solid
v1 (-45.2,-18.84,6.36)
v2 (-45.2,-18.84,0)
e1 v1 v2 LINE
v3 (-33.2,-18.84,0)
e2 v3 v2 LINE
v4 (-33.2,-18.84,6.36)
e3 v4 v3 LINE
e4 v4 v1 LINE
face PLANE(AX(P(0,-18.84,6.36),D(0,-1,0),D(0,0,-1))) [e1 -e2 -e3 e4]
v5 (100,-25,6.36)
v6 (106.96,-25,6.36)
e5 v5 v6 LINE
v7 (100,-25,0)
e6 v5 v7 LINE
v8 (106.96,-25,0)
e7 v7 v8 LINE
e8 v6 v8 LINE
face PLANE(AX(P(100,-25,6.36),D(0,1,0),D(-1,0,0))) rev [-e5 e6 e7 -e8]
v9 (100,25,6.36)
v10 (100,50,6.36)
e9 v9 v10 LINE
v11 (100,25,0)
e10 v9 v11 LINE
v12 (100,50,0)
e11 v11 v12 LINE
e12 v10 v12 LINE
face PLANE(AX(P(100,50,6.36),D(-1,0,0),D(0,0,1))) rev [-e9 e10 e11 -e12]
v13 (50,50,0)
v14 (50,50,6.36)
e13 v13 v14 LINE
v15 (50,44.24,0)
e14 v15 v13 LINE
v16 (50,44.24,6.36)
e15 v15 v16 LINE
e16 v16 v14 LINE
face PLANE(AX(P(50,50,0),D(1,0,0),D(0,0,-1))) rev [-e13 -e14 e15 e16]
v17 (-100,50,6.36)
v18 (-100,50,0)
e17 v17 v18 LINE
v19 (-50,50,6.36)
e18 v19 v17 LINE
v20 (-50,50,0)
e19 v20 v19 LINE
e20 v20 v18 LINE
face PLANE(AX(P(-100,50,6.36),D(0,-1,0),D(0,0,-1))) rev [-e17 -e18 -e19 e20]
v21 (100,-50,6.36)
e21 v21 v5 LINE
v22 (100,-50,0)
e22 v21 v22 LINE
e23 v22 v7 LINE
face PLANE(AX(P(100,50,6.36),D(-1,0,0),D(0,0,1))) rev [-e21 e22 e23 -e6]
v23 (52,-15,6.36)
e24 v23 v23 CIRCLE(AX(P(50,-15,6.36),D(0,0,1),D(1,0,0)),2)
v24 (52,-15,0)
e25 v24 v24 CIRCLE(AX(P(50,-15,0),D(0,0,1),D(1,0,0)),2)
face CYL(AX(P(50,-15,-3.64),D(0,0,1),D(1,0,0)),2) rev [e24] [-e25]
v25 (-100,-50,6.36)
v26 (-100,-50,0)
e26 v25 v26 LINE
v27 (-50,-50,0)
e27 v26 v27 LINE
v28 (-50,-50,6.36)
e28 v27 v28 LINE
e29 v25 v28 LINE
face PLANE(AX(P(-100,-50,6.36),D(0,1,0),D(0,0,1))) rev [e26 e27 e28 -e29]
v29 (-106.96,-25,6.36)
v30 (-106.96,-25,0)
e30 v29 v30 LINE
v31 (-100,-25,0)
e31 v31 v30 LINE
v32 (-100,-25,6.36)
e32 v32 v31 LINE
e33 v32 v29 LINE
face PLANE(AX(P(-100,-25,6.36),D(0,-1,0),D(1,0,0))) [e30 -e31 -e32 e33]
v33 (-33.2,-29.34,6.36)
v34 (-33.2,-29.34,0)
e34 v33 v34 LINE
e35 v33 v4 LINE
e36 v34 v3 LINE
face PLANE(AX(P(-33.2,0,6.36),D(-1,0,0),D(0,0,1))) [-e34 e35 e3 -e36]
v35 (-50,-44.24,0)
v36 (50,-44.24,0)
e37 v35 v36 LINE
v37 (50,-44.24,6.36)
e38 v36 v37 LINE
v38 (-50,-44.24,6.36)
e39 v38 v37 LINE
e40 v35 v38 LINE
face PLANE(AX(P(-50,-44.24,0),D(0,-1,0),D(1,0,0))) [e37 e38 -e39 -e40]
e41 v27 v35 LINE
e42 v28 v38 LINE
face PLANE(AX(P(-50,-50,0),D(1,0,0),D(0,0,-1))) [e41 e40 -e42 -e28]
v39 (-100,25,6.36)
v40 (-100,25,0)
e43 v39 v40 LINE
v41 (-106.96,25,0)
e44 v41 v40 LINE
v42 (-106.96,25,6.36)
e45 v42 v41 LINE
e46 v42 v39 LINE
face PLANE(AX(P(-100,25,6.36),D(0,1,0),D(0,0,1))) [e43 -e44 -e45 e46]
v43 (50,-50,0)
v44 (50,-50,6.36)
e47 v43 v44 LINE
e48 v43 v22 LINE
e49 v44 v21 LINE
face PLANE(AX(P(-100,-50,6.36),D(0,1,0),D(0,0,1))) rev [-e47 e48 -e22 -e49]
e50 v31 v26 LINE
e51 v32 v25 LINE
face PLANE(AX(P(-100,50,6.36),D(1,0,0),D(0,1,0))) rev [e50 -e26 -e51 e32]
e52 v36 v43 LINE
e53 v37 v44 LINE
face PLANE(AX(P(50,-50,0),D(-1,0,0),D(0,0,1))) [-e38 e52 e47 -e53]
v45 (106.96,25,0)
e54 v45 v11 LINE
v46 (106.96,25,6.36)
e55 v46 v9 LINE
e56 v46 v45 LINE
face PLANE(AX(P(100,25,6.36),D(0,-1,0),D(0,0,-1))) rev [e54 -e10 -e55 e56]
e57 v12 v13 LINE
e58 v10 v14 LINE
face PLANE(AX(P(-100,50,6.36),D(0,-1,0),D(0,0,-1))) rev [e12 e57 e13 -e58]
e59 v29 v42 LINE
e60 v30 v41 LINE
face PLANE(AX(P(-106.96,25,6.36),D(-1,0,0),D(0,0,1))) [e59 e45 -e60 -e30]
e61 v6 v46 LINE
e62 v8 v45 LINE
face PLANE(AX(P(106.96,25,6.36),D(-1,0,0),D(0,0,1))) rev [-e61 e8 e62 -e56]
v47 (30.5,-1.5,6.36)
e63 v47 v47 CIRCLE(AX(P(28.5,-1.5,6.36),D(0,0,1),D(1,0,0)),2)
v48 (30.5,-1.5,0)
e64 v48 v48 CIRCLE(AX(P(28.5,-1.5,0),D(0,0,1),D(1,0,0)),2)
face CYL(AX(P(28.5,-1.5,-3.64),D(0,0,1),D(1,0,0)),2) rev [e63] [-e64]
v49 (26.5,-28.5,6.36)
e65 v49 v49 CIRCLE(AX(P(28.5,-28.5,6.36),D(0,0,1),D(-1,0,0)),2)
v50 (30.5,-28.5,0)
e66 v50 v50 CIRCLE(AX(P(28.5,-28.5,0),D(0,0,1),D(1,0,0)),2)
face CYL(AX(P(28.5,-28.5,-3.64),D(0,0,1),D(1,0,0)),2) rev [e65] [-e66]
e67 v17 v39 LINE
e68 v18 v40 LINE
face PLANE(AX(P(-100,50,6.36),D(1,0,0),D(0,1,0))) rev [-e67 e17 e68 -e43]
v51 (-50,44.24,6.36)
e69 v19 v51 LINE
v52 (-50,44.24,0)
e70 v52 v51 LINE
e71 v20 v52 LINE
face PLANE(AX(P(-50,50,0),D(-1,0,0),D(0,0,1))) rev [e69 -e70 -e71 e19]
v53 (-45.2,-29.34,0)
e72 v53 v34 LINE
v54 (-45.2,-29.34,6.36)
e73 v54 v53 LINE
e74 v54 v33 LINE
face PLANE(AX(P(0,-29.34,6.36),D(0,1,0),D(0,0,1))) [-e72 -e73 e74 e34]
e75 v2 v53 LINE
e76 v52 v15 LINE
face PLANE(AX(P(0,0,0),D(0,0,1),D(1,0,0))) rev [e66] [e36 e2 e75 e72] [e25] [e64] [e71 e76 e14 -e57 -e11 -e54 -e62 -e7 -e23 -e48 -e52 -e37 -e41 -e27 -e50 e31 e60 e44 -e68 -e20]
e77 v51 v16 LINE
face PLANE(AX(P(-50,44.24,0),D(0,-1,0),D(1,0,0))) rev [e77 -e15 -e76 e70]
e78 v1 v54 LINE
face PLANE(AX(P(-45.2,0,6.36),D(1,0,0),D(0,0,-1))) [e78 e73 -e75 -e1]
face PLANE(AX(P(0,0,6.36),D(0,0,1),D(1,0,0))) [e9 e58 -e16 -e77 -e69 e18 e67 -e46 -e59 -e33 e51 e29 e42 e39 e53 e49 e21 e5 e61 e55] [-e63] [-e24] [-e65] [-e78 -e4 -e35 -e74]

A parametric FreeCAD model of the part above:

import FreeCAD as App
import Part
import Sketcher

V = App.Vector
Q = App.Units.Quantity


def add_polygon(sketch, points):
    """Adds a closed chain of lines whose ends are joined by coincident constraints."""
    first, n = sketch.GeometryCount, len(points)
    for a, b in zip(points, points[1:] + points[:1]):
        sketch.addGeometry(Part.LineSegment(App.Vector(*a, 0), App.Vector(*b, 0)), False)
    for i in range(n):
        sketch.addConstraint(Sketcher.Constraint("Coincident", first + i, 2, first + (i + 1) % n, 1))

doc = App.newDocument("Part")
body = doc.addObject("PartDesign::Body", "Body")

# Sketch on XY plane
sketch1 = doc.addObject("Sketcher::SketchObject", "Sketch")
body.addObject(sketch1)
sketch1.AttachmentSupport = (doc.XY_Plane, [""])
sketch1.MapMode = "FlatFace"
add_polygon(sketch1, [(-100, 50), (-100, -50), (100, -50), (100, 50)])  # lines 0-3
sketch1.addConstraint(Sketcher.Constraint("Vertical", 0))
sketch1.addConstraint(Sketcher.Constraint("Horizontal", 1))
sketch1.addConstraint(Sketcher.Constraint("Vertical", 2))
sketch1.addConstraint(Sketcher.Constraint("Horizontal", 3))
sketch1.addConstraint(Sketcher.Constraint("Symmetric", 0, 2, 2, 2, -1, 1))
sketch1.addConstraint(Sketcher.Constraint("DistanceX", 1, 1, 1, 2, Q("200 mm")))
sketch1.addConstraint(Sketcher.Constraint("DistanceY", 0, 2, 0, 1, Q("100 mm")))
pad1 = doc.addObject("PartDesign::Pad", "Pad")
body.addObject(pad1)
pad1.Profile = sketch1
pad1.Length = 6.36

# Sketch on XY plane
sketch2 = doc.addObject("Sketcher::SketchObject", "Sketch001")
body.addObject(sketch2)
sketch2.AttachmentSupport = (doc.XY_Plane, [""])
sketch2.MapMode = "FlatFace"
add_polygon(sketch2, [(-100, 25), (-100, -25), (-107, -25), (-107, 25)])  # lines 0-3
sketch2.addConstraint(Sketcher.Constraint("Vertical", 0))
sketch2.addConstraint(Sketcher.Constraint("Horizontal", 1))
sketch2.addConstraint(Sketcher.Constraint("Vertical", 2))
sketch2.addConstraint(Sketcher.Constraint("Horizontal", 3))
sketch2.addConstraint(Sketcher.Constraint("DistanceY", 0, 2, 0, 1, Q("50 mm")))
sketch2.addConstraint(Sketcher.Constraint("DistanceX", 0, 2, -1, 1, Q("100 mm")))
sketch2.addConstraint(Sketcher.Constraint("DistanceY", 0, 2, -1, 1, Q("25 mm")))
sketch2.addConstraint(Sketcher.Constraint("DistanceX", 1, 2, 1, 1, Q("6.96 mm")))
pad2 = doc.addObject("PartDesign::Pad", "Pad001")
body.addObject(pad2)
pad2.Profile = sketch2
pad2.Length = 6.36
doc.recompute()

mirrored = doc.addObject("PartDesign::Mirrored", "Mirrored")
body.addObject(mirrored)
mirrored.Originals = [pad2]
mirrored.MirrorPlane = (doc.YZ_Plane, [""])
body.Tip = mirrored

# Sketch on XY plane
sketch3 = doc.addObject("Sketcher::SketchObject", "Sketch002")
body.addObject(sketch3)
sketch3.AttachmentSupport = (doc.XY_Plane, [""])
sketch3.MapMode = "FlatFace"
sketch3.AttachmentOffset = App.Placement(V(0, 0, 6.36), App.Rotation())
add_polygon(sketch3, [(-50, 50), (-50, 44), (50, 44), (50, 50)])  # lines 0-3
sketch3.addConstraint(Sketcher.Constraint("Vertical", 0))
sketch3.addConstraint(Sketcher.Constraint("Horizontal", 1))
sketch3.addConstraint(Sketcher.Constraint("Vertical", 2))
sketch3.addConstraint(Sketcher.Constraint("Horizontal", 3))
sketch3.addConstraint(Sketcher.Constraint("DistanceX", 1, 1, 1, 2, Q("100 mm")))
sketch3.addConstraint(Sketcher.Constraint("DistanceX", 0, 2, -1, 1, Q("50 mm")))
sketch3.addConstraint(Sketcher.Constraint("DistanceY", -1, 1, 2, 2, Q("50 mm")))
sketch3.addConstraint(Sketcher.Constraint("DistanceY", 0, 2, 0, 1, Q("5.76 mm")))
pocket1 = doc.addObject("PartDesign::Pocket", "Pocket")
body.addObject(pocket1)
pocket1.Profile = sketch3
pocket1.Length = 238.481637
pocket1.Midplane = True
doc.recompute()

mirrored2 = doc.addObject("PartDesign::Mirrored", "Mirrored001")
body.addObject(mirrored2)
mirrored2.Originals = [pocket1]
mirrored2.MirrorPlane = (doc.XZ_Plane, [""])
body.Tip = mirrored2

# Sketch on XY plane
sketch4 = doc.addObject("Sketcher::SketchObject", "Sketch003")
body.addObject(sketch4)
sketch4.AttachmentSupport = (doc.XY_Plane, [""])
sketch4.MapMode = "FlatFace"
sketch4.AttachmentOffset = App.Placement(V(0, 0, 6.36), App.Rotation())
sketch4.addGeometry(Part.Circle(V(50, -15, 0), V(0, 0, 1), 2), False)
sketch4.addGeometry(Part.Circle(V(28.5, -1.5, 0), V(0, 0, 1), 2), False)
sketch4.addGeometry(Part.Circle(V(28.5, -28.5, 0), V(0, 0, 1), 2), False)
sketch4.addConstraint(Sketcher.Constraint("Equal", 0, 1))
sketch4.addConstraint(Sketcher.Constraint("Equal", 1, 2))
sketch4.addConstraint(Sketcher.Constraint("Vertical", 1, 3, 2, 3))
sketch4.addConstraint(Sketcher.Constraint("Diameter", 0, Q("4 mm")))
sketch4.addConstraint(Sketcher.Constraint("DistanceX", -1, 1, 0, 3, Q("50 mm")))
sketch4.addConstraint(Sketcher.Constraint("DistanceY", 0, 3, -1, 1, Q("15 mm")))
sketch4.addConstraint(Sketcher.Constraint("DistanceY", 2, 3, 1, 3, Q("27 mm")))
sketch4.addConstraint(Sketcher.Constraint("DistanceX", -1, 1, 1, 3, Q("28.5 mm")))
sketch4.addConstraint(Sketcher.Constraint("DistanceY", 1, 3, -1, 1, Q("1.5 mm")))
pocket2 = doc.addObject("PartDesign::Pocket", "Pocket001")
body.addObject(pocket2)
pocket2.Profile = sketch4
pocket2.Length = 10

# Sketch on XY plane
sketch5 = doc.addObject("Sketcher::SketchObject", "Sketch004")
body.addObject(sketch5)
sketch5.AttachmentSupport = (doc.XY_Plane, [""])
sketch5.MapMode = "FlatFace"
add_polygon(sketch5, [(-33, -19), (-33, -29), (-45, -29), (-45, -19)])  # lines 0-3
sketch5.addConstraint(Sketcher.Constraint("Vertical", 0))
sketch5.addConstraint(Sketcher.Constraint("Horizontal", 1))
sketch5.addConstraint(Sketcher.Constraint("Vertical", 2))
sketch5.addConstraint(Sketcher.Constraint("Horizontal", 3))
sketch5.addConstraint(Sketcher.Constraint("DistanceX", 1, 2, 1, 1, Q("12 mm")))
sketch5.addConstraint(Sketcher.Constraint("DistanceY", 0, 2, 0, 1, Q("10.5 mm")))
sketch5.addConstraint(Sketcher.Constraint("DistanceX", 0, 2, -1, 1, Q("33.2 mm")))
sketch5.addConstraint(Sketcher.Constraint("DistanceY", 0, 2, -1, 1, Q("29.34 mm")))
pocket3 = doc.addObject("PartDesign::Pocket", "Pocket002")
body.addObject(pocket3)
pocket3.Profile = sketch5
pocket3.Type = "ThroughAll"
pocket3.Reversed = True

doc.recompute()
